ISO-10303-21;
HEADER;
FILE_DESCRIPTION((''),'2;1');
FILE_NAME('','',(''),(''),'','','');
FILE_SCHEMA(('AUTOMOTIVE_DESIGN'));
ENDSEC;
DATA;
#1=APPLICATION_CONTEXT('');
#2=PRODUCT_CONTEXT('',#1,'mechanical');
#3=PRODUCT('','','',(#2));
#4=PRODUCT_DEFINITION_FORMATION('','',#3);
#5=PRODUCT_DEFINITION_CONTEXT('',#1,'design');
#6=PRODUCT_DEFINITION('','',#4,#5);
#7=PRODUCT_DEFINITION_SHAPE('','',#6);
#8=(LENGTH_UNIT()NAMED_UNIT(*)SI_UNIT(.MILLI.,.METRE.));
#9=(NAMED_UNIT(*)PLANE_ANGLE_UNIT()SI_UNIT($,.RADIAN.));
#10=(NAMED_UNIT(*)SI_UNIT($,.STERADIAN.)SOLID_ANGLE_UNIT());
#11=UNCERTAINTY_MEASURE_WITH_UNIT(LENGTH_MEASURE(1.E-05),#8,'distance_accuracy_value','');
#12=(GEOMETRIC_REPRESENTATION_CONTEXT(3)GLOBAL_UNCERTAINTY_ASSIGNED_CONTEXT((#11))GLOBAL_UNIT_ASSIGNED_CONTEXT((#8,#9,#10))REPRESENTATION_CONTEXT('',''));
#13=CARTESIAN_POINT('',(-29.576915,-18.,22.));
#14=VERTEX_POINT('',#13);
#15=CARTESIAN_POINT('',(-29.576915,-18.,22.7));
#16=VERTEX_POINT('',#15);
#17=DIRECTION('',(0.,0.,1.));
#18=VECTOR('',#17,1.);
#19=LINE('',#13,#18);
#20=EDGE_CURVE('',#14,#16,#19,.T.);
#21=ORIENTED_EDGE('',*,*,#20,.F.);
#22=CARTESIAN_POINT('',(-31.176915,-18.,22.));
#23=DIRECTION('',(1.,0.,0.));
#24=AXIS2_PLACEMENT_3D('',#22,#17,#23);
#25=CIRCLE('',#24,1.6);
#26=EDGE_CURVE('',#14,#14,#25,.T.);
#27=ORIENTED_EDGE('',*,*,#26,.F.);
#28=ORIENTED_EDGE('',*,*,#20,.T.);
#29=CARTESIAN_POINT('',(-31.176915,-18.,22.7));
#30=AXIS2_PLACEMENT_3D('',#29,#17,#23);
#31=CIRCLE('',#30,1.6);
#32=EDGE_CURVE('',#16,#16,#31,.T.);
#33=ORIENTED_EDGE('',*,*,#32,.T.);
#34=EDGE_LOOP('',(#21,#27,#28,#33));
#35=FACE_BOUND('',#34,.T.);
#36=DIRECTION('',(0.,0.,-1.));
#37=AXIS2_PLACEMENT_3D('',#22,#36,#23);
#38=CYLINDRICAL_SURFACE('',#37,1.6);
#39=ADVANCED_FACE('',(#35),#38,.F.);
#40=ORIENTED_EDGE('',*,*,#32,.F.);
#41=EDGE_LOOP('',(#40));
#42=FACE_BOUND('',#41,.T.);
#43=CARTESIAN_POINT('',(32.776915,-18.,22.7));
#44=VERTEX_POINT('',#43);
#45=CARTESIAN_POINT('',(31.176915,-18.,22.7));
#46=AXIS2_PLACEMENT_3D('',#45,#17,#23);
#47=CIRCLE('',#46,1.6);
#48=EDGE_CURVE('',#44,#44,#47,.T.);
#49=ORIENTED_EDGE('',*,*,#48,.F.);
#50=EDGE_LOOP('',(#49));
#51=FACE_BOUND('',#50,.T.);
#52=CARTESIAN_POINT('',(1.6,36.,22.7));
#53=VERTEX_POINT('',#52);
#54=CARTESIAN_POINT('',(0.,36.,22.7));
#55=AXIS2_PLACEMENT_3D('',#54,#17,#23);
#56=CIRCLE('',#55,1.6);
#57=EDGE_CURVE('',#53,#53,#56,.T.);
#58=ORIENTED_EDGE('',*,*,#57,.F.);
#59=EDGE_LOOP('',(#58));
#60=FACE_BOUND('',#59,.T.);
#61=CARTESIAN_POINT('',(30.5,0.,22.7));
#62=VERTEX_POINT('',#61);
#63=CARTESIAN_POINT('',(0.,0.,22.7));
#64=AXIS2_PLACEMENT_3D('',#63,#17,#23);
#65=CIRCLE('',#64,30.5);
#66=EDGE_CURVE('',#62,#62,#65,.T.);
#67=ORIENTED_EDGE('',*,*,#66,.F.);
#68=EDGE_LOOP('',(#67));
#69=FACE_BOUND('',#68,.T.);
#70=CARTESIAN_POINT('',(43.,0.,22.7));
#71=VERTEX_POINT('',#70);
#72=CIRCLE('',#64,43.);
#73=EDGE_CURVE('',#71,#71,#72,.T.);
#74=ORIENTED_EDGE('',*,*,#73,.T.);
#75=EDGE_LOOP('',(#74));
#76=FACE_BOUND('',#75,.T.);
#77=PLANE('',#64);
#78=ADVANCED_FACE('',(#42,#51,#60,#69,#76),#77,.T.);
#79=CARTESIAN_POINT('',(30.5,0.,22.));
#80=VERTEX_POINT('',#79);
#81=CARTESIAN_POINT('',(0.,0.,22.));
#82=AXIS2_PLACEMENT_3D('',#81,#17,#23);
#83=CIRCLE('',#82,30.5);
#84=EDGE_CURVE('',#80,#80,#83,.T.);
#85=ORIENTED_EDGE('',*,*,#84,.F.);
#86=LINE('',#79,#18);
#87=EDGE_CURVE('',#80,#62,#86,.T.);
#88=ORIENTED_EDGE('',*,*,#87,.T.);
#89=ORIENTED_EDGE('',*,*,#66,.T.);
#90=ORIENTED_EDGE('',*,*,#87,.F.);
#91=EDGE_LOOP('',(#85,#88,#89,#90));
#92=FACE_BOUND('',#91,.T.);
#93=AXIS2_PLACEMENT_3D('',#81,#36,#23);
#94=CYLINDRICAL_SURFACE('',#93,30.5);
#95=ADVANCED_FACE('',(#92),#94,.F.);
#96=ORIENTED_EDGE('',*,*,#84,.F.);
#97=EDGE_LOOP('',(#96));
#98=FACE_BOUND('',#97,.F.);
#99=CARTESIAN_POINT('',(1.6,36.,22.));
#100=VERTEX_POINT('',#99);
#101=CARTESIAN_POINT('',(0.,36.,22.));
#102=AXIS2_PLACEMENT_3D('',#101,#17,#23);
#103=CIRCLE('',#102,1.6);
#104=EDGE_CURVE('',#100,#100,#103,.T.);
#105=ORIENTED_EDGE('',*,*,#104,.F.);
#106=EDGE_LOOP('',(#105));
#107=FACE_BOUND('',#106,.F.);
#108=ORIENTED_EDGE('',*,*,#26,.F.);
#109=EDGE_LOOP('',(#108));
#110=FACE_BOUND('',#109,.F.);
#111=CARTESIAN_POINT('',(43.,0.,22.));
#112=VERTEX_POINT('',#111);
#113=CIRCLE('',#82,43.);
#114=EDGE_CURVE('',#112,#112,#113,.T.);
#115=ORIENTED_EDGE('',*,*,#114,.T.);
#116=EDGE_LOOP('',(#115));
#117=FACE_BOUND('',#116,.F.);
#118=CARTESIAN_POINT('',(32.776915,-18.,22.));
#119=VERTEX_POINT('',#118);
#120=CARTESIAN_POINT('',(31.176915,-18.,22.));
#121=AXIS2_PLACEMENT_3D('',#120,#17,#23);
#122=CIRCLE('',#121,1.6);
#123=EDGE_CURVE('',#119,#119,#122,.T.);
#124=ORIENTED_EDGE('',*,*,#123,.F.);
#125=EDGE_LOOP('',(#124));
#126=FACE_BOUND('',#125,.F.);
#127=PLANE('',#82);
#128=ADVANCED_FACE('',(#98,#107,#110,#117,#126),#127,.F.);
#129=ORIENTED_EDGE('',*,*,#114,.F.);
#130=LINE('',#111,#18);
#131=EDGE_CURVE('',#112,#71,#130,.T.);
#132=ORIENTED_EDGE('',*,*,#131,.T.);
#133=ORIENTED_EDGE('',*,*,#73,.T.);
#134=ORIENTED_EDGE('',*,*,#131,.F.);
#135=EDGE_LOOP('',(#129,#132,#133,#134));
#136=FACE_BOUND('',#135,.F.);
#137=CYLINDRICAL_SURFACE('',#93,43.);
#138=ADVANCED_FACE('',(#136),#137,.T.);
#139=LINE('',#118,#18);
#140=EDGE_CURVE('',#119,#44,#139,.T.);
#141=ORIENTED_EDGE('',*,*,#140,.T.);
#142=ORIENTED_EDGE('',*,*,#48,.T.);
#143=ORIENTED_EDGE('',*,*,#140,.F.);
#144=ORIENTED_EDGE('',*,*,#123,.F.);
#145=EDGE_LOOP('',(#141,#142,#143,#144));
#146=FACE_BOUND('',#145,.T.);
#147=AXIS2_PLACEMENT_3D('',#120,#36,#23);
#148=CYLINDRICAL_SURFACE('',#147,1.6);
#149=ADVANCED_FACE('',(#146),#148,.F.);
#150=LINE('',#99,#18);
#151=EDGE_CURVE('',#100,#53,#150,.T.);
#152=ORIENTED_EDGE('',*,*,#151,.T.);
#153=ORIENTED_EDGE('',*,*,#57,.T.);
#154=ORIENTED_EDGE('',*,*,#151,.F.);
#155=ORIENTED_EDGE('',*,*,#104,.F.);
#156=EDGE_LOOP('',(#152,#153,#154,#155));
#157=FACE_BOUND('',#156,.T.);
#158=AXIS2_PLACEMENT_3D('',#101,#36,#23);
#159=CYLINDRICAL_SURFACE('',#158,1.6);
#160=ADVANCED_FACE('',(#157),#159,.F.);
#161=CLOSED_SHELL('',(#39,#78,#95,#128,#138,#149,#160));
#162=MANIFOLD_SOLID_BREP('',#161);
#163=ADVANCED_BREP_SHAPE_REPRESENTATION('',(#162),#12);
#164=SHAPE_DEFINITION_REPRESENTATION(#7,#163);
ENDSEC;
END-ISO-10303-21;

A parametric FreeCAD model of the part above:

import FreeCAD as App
import Part
import Sketcher

V = App.Vector

doc = App.newDocument("Part")
body = doc.addObject("PartDesign::Body", "Body")

sketch1 = body.newObject("Sketcher::SketchObject", "Sketch")
sketch1.AttachmentSupport = (doc.getObject("XY_Plane"), [""])
sketch1.MapMode = "FlatFace"
sketch1.AttachmentOffset = App.Placement(V(0, 0, 22), App.Rotation())
sketch1.addGeometry([
    Part.Circle(V(0, 0, 0), V(0, 0, 1), 43),
    Part.Circle(V(-31.176915, -18, 0), V(0, 0, 1), 1.6),
    Part.Circle(V(31.176915, -18, 0), V(0, 0, 1), 1.6),
    Part.Circle(V(0, 0, 0), V(0, 0, 1), 30.5),
    Part.Circle(V(0, 36, 0), V(0, 0, 1), 1.6),
], False)
sketch1.addConstraint([
    Sketcher.Constraint("Coincident", 0, 3, -1, 1),
    Sketcher.Constraint("Coincident", 3, 3, -1, 1),
    Sketcher.Constraint("Equal", 1, 2),
    Sketcher.Constraint("Equal", 2, 4),
    Sketcher.Constraint("Symmetric", 1, 3, 2, 3, -2),
    Sketcher.Constraint("PointOnObject", 4, 3, -2),
    Sketcher.Constraint("Diameter", 0, 86.0),
    Sketcher.Constraint("Diameter", 3, 61.0),
    Sketcher.Constraint("Diameter", 1, 3.2),
    Sketcher.Constraint("DistanceY", 1, 3, -1, 1, 18.0),
    Sketcher.Constraint("DistanceY", -1, 1, 4, 3, 36.0),
    Sketcher.Constraint("DistanceX", 1, 3, 2, 3, 62.35383),
])
pad1 = body.newObject("PartDesign::Pad", "Pad")
pad1.Profile = sketch1
pad1.Length = 0.7

doc.recompute()
